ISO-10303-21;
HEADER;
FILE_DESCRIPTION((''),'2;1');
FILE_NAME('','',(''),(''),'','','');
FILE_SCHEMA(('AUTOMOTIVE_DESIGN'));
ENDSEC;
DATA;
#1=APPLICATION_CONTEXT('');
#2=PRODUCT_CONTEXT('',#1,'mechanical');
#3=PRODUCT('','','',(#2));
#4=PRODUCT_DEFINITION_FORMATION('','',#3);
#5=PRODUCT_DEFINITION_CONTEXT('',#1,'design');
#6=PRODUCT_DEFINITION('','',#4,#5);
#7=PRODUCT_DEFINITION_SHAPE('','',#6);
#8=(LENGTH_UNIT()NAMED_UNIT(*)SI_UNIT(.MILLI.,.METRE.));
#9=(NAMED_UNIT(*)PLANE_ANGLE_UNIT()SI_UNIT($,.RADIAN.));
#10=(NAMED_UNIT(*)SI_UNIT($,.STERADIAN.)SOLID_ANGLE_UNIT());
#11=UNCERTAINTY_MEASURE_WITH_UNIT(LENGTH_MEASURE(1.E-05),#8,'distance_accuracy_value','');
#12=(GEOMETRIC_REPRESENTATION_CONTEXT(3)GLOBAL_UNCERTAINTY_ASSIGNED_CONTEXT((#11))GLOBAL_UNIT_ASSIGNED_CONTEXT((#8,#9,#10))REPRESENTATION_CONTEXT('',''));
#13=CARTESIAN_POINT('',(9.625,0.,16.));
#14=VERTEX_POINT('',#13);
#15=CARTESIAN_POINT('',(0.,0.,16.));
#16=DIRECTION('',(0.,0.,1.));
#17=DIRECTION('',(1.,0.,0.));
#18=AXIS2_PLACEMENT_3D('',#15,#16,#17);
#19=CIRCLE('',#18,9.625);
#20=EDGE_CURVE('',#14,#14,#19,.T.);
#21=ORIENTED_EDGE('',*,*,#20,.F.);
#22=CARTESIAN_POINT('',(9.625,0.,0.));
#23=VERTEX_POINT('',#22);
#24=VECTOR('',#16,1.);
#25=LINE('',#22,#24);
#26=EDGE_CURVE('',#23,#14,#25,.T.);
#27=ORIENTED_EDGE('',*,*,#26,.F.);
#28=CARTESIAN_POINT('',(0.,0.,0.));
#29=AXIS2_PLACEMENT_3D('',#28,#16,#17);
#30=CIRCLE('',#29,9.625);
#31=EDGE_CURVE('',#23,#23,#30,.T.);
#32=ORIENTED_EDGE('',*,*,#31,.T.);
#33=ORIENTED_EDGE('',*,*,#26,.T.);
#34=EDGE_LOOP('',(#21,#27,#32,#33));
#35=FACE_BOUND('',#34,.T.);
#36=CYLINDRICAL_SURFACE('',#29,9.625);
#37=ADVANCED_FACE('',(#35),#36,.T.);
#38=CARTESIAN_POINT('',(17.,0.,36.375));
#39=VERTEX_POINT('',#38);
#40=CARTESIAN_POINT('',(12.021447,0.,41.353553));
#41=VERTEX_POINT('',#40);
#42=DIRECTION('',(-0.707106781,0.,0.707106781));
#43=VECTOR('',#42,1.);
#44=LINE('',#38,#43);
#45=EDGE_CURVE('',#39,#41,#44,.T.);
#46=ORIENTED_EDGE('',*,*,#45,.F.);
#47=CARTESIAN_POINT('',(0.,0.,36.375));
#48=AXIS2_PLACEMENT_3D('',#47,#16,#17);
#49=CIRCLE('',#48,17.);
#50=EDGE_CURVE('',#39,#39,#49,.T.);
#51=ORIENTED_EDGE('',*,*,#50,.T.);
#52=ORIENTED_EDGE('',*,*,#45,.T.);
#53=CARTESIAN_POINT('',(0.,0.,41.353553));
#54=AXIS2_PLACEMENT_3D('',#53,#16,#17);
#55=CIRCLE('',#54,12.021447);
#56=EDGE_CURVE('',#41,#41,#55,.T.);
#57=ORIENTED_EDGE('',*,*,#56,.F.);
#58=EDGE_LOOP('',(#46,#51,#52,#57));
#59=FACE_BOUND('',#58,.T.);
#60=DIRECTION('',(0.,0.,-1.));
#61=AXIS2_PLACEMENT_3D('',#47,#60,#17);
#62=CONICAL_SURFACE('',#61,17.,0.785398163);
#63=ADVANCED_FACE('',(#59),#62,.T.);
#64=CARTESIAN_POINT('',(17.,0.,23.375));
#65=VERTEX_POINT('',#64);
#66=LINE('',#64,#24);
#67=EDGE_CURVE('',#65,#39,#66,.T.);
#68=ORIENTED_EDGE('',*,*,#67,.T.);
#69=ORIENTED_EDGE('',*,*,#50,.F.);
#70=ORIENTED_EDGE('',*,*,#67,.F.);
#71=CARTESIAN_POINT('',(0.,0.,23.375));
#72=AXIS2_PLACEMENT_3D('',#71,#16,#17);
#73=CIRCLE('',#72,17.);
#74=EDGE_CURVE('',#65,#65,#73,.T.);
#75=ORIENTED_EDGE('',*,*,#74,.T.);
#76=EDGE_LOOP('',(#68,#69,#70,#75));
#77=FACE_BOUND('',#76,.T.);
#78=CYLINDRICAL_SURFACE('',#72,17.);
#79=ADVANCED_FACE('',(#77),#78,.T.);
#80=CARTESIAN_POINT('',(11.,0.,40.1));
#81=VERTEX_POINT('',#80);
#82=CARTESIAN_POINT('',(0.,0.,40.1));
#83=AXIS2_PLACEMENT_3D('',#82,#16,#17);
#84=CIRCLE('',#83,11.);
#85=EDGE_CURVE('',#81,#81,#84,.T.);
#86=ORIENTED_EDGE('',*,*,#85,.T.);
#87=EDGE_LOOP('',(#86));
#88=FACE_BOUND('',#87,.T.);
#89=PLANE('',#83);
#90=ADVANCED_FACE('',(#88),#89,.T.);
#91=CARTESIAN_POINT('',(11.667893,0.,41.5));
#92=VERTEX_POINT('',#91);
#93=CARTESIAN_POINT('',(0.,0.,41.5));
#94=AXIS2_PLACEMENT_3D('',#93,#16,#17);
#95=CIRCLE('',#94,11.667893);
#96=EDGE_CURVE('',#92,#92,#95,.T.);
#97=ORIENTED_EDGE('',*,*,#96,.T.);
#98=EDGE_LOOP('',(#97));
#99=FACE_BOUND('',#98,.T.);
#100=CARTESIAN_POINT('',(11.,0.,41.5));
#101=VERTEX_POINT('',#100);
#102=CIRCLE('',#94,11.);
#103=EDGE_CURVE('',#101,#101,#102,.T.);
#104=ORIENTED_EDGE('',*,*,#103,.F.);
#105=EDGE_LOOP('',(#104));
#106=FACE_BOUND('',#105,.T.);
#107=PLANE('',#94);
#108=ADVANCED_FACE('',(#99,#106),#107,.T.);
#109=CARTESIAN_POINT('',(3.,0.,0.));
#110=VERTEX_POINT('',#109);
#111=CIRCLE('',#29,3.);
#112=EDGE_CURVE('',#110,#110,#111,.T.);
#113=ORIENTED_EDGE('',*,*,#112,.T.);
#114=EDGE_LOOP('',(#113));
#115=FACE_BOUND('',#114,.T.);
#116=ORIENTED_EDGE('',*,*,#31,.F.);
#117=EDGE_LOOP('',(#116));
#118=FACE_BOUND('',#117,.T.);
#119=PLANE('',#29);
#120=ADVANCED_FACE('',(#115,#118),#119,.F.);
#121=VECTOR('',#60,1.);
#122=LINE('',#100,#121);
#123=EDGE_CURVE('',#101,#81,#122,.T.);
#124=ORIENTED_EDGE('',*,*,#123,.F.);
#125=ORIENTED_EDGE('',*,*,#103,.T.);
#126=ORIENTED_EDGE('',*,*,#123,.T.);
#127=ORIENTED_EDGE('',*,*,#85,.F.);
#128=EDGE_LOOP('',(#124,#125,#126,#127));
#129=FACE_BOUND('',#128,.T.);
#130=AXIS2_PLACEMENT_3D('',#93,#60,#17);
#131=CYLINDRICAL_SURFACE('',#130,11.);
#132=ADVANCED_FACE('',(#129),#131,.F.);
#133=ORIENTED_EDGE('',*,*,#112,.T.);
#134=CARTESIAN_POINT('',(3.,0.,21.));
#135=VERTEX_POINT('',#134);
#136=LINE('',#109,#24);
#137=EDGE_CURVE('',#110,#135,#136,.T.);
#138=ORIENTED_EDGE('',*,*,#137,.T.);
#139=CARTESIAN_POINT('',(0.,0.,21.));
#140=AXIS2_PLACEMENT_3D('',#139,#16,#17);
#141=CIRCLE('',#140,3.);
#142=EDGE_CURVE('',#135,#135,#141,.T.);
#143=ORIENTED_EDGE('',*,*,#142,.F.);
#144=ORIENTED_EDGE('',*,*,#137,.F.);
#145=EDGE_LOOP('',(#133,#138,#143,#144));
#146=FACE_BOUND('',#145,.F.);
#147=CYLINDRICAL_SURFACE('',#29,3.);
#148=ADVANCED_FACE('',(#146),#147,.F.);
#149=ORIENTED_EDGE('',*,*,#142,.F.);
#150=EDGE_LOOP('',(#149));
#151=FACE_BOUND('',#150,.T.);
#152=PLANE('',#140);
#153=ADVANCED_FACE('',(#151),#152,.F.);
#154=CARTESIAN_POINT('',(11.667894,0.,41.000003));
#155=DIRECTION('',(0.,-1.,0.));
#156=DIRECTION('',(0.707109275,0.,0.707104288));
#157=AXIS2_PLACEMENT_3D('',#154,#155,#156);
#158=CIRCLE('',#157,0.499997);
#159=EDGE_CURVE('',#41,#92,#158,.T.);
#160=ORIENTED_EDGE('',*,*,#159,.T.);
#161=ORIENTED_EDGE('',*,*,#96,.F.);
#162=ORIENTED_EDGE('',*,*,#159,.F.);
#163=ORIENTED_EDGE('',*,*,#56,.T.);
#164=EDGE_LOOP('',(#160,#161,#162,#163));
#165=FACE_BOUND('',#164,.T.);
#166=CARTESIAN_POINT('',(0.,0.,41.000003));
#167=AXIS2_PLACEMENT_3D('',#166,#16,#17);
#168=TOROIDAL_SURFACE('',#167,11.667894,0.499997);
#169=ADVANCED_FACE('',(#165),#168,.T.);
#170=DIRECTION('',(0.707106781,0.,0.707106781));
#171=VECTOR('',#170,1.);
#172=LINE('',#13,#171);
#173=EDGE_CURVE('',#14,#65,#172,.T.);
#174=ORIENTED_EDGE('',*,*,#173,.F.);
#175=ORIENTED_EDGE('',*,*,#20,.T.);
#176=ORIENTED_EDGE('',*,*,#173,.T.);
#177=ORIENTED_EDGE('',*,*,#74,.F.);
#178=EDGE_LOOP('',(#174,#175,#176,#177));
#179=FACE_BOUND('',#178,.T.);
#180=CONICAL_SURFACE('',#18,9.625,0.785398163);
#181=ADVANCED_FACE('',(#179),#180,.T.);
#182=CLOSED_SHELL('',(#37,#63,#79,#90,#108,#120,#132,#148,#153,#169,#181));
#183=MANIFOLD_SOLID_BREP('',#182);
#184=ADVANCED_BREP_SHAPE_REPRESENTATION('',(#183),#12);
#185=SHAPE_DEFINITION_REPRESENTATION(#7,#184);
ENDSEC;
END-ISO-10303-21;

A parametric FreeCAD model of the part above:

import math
import FreeCAD as App
import Part
import Sketcher
Q = App.Units.Quantity

doc = App.newDocument("Part")
body = doc.addObject("PartDesign::Body", "Body")

sketch1 = body.newObject("Sketcher::SketchObject", "Sketch")
sketch1.AttachmentSupport = (doc.getObject("XZ_Plane"), [""])
sketch1.MapMode = "FlatFace"
sketch1.addGeometry([
    Part.LineSegment(App.Vector(3, 21, 0), App.Vector(3, 0, 0)),
    Part.LineSegment(App.Vector(3, 0, 0), App.Vector(9.62, 0, 0)),
    Part.LineSegment(App.Vector(9.62, 0, 0), App.Vector(9.62, 16, 0)),
    Part.LineSegment(App.Vector(9.62, 16, 0), App.Vector(17, 23.38, 0)),
    Part.LineSegment(App.Vector(17, 23.38, 0), App.Vector(17, 36.38, 0)),
    Part.LineSegment(App.Vector(17, 36.38, 0), App.Vector(12.02, 41.35, 0)),
    Part.ArcOfCircle(Part.Circle(App.Vector(11.67, 41, 0), App.Vector(0, 0, 1), 0.5), math.radians(45), math.radians(90)),
    Part.LineSegment(App.Vector(11.67, 41.5, 0), App.Vector(11, 41.5, 0)),
    Part.LineSegment(App.Vector(11, 41.5, 0), App.Vector(11, 40.1, 0)),
    Part.LineSegment(App.Vector(11, 40.1, 0), App.Vector(0, 40.1, 0)),
    Part.LineSegment(App.Vector(0, 40.1, 0), App.Vector(0, 21, 0)),
    Part.LineSegment(App.Vector(0, 21, 0), App.Vector(3, 21, 0)),
], False)
sketch1.addConstraint([
    Sketcher.Constraint("Coincident", 0, 2, 1, 1),
    Sketcher.Constraint("Coincident", 1, 2, 2, 1),
    Sketcher.Constraint("Coincident", 2, 2, 3, 1),
    Sketcher.Constraint("Coincident", 3, 2, 4, 1),
    Sketcher.Constraint("Coincident", 4, 2, 5, 1),
    Sketcher.Constraint("Coincident", 5, 2, 6, 1),
    Sketcher.Constraint("Coincident", 6, 2, 7, 1),
    Sketcher.Constraint("Coincident", 7, 2, 8, 1),
    Sketcher.Constraint("Coincident", 8, 2, 9, 1),
    Sketcher.Constraint("Coincident", 9, 2, 10, 1),
    Sketcher.Constraint("Coincident", 10, 2, 11, 1),
    Sketcher.Constraint("Coincident", 11, 2, 0, 1),
    Sketcher.Constraint("Vertical", 0),
    Sketcher.Constraint("Horizontal", 1),
    Sketcher.Constraint("Vertical", 2),
    Sketcher.Constraint("Vertical", 4),
    Sketcher.Constraint("Horizontal", 7),
    Sketcher.Constraint("Vertical", 8),
    Sketcher.Constraint("Horizontal", 9),
    Sketcher.Constraint("Vertical", 10),
    Sketcher.Constraint("Horizontal", 11),
    Sketcher.Constraint("PointOnObject", 0, 2, -1),
    Sketcher.Constraint("PointOnObject", 9, 2, -2),
    Sketcher.Constraint("Perpendicular", 3, 5),
    Sketcher.Constraint("DistanceX", 9, 2, 9, 1, Q("11 mm")),
    Sketcher.Constraint("DistanceX", 11, 1, 11, 2, Q("3 mm")),
    Sketcher.Constraint("DistanceY", 0, 2, 0, 1, Q("21 mm")),
    Sketcher.Constraint("DistanceY", 2, 1, 2, 2, Q("16 mm")),
    Sketcher.Constraint("DistanceY", 4, 1, 4, 2, Q("13 mm")),
    Sketcher.Constraint("Angle", 3, Q("45 deg")),
    Sketcher.Constraint("DistanceY", 8, 2, 8, 1, Q("1.4 mm")),
    Sketcher.Constraint("DistanceY", 10, 2, 10, 1, Q("19.1 mm")),
    Sketcher.Constraint("DistanceX", -1, 1, 3, 2, Q("17 mm")),
    Sketcher.Constraint("DistanceX", 1, 1, 1, 2, Q("6.625 mm")),
    Sketcher.Constraint("Radius", 6, Q("0.499997 mm")),
    Sketcher.Constraint("DistanceX", 7, 2, 7, 1, Q("0.667893 mm")),
    Sketcher.Constraint("DistanceY", 6, 3, 5, 2, Q("0.35355 mm")),
])
revolution = body.newObject("PartDesign::Revolution", "Revolution")
revolution.Profile = sketch1
revolution.ReferenceAxis = (sketch1, ["V_Axis"])
revolution.Angle = 360

doc.recompute()
